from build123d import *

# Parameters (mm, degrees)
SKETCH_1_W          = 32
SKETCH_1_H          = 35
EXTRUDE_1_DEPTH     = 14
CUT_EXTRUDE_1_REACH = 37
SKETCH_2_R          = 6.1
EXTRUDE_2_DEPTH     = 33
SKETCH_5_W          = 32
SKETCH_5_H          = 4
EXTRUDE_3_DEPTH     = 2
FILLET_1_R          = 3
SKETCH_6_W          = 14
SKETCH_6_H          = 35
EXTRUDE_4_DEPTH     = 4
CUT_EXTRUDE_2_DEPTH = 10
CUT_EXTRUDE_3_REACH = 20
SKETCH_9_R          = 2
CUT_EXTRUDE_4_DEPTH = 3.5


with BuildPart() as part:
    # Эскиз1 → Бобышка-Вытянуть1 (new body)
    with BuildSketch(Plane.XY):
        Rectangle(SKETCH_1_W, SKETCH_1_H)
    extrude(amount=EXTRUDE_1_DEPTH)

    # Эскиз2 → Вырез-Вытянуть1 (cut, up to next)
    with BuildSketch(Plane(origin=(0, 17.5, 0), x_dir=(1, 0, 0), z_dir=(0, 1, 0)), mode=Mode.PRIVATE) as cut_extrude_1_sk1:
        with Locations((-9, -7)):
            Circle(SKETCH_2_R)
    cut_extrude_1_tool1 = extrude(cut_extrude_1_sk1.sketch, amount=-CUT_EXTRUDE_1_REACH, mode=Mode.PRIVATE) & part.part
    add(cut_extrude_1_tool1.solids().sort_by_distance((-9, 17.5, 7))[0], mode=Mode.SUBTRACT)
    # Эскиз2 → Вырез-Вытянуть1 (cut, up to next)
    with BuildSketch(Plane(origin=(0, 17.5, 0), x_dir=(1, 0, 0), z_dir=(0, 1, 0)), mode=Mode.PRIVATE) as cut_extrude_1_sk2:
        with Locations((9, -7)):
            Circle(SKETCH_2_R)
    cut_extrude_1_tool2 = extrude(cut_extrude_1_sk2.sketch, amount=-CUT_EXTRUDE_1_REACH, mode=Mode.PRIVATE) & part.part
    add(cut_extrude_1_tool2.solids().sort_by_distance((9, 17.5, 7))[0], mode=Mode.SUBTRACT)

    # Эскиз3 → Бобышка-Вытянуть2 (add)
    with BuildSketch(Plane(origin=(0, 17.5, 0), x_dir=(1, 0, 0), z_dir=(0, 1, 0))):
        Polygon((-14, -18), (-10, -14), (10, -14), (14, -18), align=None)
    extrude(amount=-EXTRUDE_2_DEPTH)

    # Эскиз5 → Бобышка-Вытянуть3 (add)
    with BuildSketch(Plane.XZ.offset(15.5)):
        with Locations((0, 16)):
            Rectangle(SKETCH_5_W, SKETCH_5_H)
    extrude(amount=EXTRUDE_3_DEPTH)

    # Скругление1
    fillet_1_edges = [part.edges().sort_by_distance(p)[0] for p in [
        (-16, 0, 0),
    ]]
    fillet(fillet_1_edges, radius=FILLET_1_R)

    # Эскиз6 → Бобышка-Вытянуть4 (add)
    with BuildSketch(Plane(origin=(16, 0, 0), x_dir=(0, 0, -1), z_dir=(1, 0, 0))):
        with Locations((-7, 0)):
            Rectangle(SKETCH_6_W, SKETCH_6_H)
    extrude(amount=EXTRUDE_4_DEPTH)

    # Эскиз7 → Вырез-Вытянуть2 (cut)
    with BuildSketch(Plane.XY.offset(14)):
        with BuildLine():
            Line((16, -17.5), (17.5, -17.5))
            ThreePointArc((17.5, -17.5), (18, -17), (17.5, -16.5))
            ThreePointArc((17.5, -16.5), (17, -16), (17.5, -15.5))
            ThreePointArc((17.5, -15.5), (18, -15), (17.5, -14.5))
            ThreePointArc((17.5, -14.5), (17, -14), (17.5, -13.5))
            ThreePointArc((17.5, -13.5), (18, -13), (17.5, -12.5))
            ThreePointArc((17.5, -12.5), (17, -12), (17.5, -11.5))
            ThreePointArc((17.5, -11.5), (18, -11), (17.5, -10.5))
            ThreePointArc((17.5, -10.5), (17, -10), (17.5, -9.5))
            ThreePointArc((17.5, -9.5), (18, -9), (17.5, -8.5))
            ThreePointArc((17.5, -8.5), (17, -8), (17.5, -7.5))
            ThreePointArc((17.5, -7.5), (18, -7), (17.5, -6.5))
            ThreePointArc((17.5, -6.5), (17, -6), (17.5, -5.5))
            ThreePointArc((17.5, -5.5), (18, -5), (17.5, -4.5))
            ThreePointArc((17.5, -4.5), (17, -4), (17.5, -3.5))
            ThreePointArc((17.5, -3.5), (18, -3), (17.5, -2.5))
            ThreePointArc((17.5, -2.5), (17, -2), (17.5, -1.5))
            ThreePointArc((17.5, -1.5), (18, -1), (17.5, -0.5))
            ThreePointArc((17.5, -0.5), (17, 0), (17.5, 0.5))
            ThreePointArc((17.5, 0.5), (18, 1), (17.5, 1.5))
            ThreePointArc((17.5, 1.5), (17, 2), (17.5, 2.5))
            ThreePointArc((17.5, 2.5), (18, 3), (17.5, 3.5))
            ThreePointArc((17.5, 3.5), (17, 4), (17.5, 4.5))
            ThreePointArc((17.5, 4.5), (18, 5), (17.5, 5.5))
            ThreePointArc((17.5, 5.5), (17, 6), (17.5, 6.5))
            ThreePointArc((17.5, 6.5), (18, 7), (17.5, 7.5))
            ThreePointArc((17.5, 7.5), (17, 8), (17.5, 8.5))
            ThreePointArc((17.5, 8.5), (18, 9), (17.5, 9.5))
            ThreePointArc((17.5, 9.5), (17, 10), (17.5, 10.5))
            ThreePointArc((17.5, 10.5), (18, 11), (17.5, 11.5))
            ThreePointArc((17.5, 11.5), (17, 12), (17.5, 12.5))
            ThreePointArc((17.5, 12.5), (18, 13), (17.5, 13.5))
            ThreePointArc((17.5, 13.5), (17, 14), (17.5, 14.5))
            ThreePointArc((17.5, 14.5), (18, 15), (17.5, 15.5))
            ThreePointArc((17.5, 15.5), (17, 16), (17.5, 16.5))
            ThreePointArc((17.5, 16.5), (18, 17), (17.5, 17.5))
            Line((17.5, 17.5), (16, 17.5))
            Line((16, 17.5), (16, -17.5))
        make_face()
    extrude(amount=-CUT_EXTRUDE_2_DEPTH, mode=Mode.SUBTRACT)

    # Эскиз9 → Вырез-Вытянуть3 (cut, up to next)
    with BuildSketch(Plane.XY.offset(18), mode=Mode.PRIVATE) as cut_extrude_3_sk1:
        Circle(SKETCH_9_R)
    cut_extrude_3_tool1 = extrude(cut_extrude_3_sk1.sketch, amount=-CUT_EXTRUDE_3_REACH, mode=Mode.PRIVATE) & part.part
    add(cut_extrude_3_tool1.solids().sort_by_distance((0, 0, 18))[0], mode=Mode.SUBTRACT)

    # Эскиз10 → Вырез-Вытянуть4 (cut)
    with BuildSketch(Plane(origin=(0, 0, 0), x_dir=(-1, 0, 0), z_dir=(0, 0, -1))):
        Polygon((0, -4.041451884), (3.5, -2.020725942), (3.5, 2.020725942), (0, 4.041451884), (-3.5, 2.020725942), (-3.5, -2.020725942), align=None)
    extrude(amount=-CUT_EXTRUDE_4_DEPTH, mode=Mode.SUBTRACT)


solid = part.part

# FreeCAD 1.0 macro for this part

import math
import FreeCAD as App
import Part
import Sketcher
from FreeCAD import Vector
Q = App.Units.Quantity


def edges_at(feature, points):
    """Names of the edges that pass closest to the given points."""
    edges = feature.Shape.Edges
    near = lambda p: min(range(len(edges)), key=lambda i: edges[i].distToShape(Part.Vertex(*p))[0])
    return sorted({f"Edge{near(p) + 1}" for p in points})


def add_polygon(sketch, points):
    """Adds a closed chain of lines whose ends are joined by coincident constraints."""
    first, n = sketch.GeometryCount, len(points)
    for a, b in zip(points, points[1:] + points[:1]):
        sketch.addGeometry(Part.LineSegment(App.Vector(*a, 0), App.Vector(*b, 0)), False)
    for i in range(n):
        sketch.addConstraint(Sketcher.Constraint("Coincident", first + i, 2, first + (i + 1) % n, 1))

doc = App.newDocument("Part")
body = doc.addObject("PartDesign::Body", "Body")

# Sketch on XY plane
sketch1 = doc.addObject("Sketcher::SketchObject", "Sketch")
body.addObject(sketch1)
sketch1.AttachmentSupport = (doc.XY_Plane, [""])
sketch1.MapMode = "FlatFace"
add_polygon(sketch1, [(-16, 18), (-16, -18), (16, -18), (16, 18)])  # lines 0-3
sketch1.addConstraint(Sketcher.Constraint("Vertical", 0))
sketch1.addConstraint(Sketcher.Constraint("Horizontal", 1))
sketch1.addConstraint(Sketcher.Constraint("Vertical", 2))
sketch1.addConstraint(Sketcher.Constraint("Horizontal", 3))
sketch1.addConstraint(Sketcher.Constraint("Symmetric", 0, 2, 2, 2, -1, 1))
sketch1.addConstraint(Sketcher.Constraint("DistanceX", 1, 1, 1, 2, Q("32 mm")))
sketch1.addConstraint(Sketcher.Constraint("DistanceY", 0, 2, 0, 1, Q("35 mm")))
pad1 = doc.addObject("PartDesign::Pad", "Pad")
body.addObject(pad1)
pad1.Profile = sketch1
pad1.Length = 14

# Sketch on XZ plane
sketch2 = doc.addObject("Sketcher::SketchObject", "Sketch001")
body.addObject(sketch2)
sketch2.AttachmentSupport = (doc.XZ_Plane, [""])
sketch2.MapMode = "FlatFace"
sketch2.AttachmentOffset = App.Placement(Vector(0, 0, -17.5), App.Rotation())
sketch2.addGeometry(Part.Circle(Vector(-9, 7, 0), Vector(0, 0, 1), 6), False)
sketch2.addConstraint(Sketcher.Constraint("Diameter", 0, Q("12.2 mm")))
sketch2.addConstraint(Sketcher.Constraint("DistanceX", 0, 3, -1, 1, Q("9 mm")))
sketch2.addConstraint(Sketcher.Constraint("DistanceY", -1, 1, 0, 3, Q("7 mm")))
pocket1 = doc.addObject("PartDesign::Pocket", "Pocket")
body.addObject(pocket1)
pocket1.Profile = sketch2
pocket1.Type = "UpToFirst"
pocket1.Reversed = True

# Sketch on XZ plane
sketch3 = doc.addObject("Sketcher::SketchObject", "Sketch002")
body.addObject(sketch3)
sketch3.AttachmentSupport = (doc.XZ_Plane, [""])
sketch3.MapMode = "FlatFace"
sketch3.AttachmentOffset = App.Placement(Vector(0, 0, -17.5), App.Rotation())
sketch3.addGeometry(Part.Circle(Vector(9, 7, 0), Vector(0, 0, 1), 6), False)
sketch3.addConstraint(Sketcher.Constraint("Diameter", 0, Q("12.2 mm")))
sketch3.addConstraint(Sketcher.Constraint("DistanceX", -1, 1, 0, 3, Q("9 mm")))
sketch3.addConstraint(Sketcher.Constraint("DistanceY", -1, 1, 0, 3, Q("7 mm")))
pocket2 = doc.addObject("PartDesign::Pocket", "Pocket001")
body.addObject(pocket2)
pocket2.Profile = sketch3
pocket2.Type = "UpToFirst"
pocket2.Reversed = True

# Sketch on XZ plane
sketch4 = doc.addObject("Sketcher::SketchObject", "Sketch003")
body.addObject(sketch4)
sketch4.AttachmentSupport = (doc.XZ_Plane, [""])
sketch4.MapMode = "FlatFace"
sketch4.AttachmentOffset = App.Placement(Vector(0, 0, -17.5), App.Rotation())
add_polygon(sketch4, [(-10, 14), (-14, 18), (14, 18), (10, 14)])  # lines 0-3
sketch4.addConstraint(Sketcher.Constraint("Horizontal", 1))
sketch4.addConstraint(Sketcher.Constraint("Horizontal", 3))
sketch4.addConstraint(Sketcher.Constraint("Perpendicular", 0, 2))
sketch4.addConstraint(Sketcher.Constraint("Equal", 0, 2))
sketch4.addConstraint(Sketcher.Constraint("DistanceX", 1, 1, 1, 2, Q("28 mm")))
sketch4.addConstraint(Sketcher.Constraint("DistanceX", 3, 2, 3, 1, Q("20 mm")))
sketch4.addConstraint(Sketcher.Constraint("DistanceX", 0, 2, -1, 1, Q("14 mm")))
sketch4.addConstraint(Sketcher.Constraint("DistanceY", -1, 1, 0, 2, Q("18 mm")))
pad2 = doc.addObject("PartDesign::Pad", "Pad001")
body.addObject(pad2)
pad2.Profile = sketch4
pad2.Length = 33

# Sketch on XZ plane
sketch5 = doc.addObject("Sketcher::SketchObject", "Sketch004")
body.addObject(sketch5)
sketch5.AttachmentSupport = (doc.XZ_Plane, [""])
sketch5.MapMode = "FlatFace"
sketch5.AttachmentOffset = App.Placement(Vector(0, 0, 15.5), App.Rotation())
add_polygon(sketch5, [(-16, 18), (-16, 14), (16, 14), (16, 18)])  # lines 0-3
sketch5.addConstraint(Sketcher.Constraint("Vertical", 0))
sketch5.addConstraint(Sketcher.Constraint("Horizontal", 1))
sketch5.addConstraint(Sketcher.Constraint("Vertical", 2))
sketch5.addConstraint(Sketcher.Constraint("Horizontal", 3))
sketch5.addConstraint(Sketcher.Constraint("DistanceX", 1, 1, 1, 2, Q("32 mm")))
sketch5.addConstraint(Sketcher.Constraint("DistanceY", 0, 2, 0, 1, Q("4 mm")))
sketch5.addConstraint(Sketcher.Constraint("DistanceX", 0, 2, -1, 1, Q("16 mm")))
sketch5.addConstraint(Sketcher.Constraint("DistanceY", -1, 1, 0, 2, Q("14 mm")))
pad3 = doc.addObject("PartDesign::Pad", "Pad002")
body.addObject(pad3)
pad3.Profile = sketch5
pad3.Length = 2
doc.recompute()

fillet = doc.addObject("PartDesign::Fillet", "Fillet")
body.addObject(fillet)
fillet.Base = (pad3, edges_at(pad3, [(-16, 0, 0)]))
fillet.Radius = 3

# Sketch on YZ plane
sketch6 = doc.addObject("Sketcher::SketchObject", "Sketch005")
body.addObject(sketch6)
sketch6.AttachmentSupport = (doc.YZ_Plane, [""])
sketch6.MapMode = "FlatFace"
sketch6.AttachmentOffset = App.Placement(Vector(0, 0, 16), App.Rotation())
add_polygon(sketch6, [(18, 14), (-18, 14), (-18, 0), (18, 0)])  # lines 0-3
sketch6.addConstraint(Sketcher.Constraint("Horizontal", 0))
sketch6.addConstraint(Sketcher.Constraint("Vertical", 1))
sketch6.addConstraint(Sketcher.Constraint("Horizontal", 2))
sketch6.addConstraint(Sketcher.Constraint("Vertical", 3))
sketch6.addConstraint(Sketcher.Constraint("Symmetric", 1, 2, 2, 2, -1, 1))
sketch6.addConstraint(Sketcher.Constraint("DistanceX", 0, 2, 0, 1, Q("35 mm")))
sketch6.addConstraint(Sketcher.Constraint("DistanceY", 1, 2, 1, 1, Q("14 mm")))
pad4 = doc.addObject("PartDesign::Pad", "Pad003")
body.addObject(pad4)
pad4.Profile = sketch6
pad4.Length = 4

# Sketch on XY plane
sketch7 = doc.addObject("Sketcher::SketchObject", "Sketch006")
body.addObject(sketch7)
sketch7.AttachmentSupport = (doc.XY_Plane, [""])
sketch7.MapMode = "FlatFace"
sketch7.AttachmentOffset = App.Placement(Vector(0, 0, 14), App.Rotation())
sketch7.addGeometry(Part.LineSegment(Vector(16, -17.5, 0), Vector(17.5, -17.5, 0)), False)
sketch7.addGeometry(Part.ArcOfCircle(Part.Circle(Vector(17.5, -17, 0), Vector(0, 0, 1), 0.5), math.radians(-90), math.radians(90)), False)
sketch7.addGeometry(Part.ArcOfCircle(Part.Circle(Vector(17.5, -16, 0), Vector(0, 0, 1), 0.5), math.radians(90), math.radians(270)), False)
sketch7.addGeometry(Part.ArcOfCircle(Part.Circle(Vector(17.5, -15, 0), Vector(0, 0, 1), 0.5), math.radians(-90), math.radians(90)), False)
sketch7.addGeometry(Part.ArcOfCircle(Part.Circle(Vector(17.5, -14, 0), Vector(0, 0, 1), 0.5), math.radians(90), math.radians(270)), False)
sketch7.addGeometry(Part.ArcOfCircle(Part.Circle(Vector(17.5, -13, 0), Vector(0, 0, 1), 0.5), math.radians(-90), math.radians(90)), False)
sketch7.addGeometry(Part.ArcOfCircle(Part.Circle(Vector(17.5, -12, 0), Vector(0, 0, 1), 0.5), math.radians(90), math.radians(270)), False)
sketch7.addGeometry(Part.ArcOfCircle(Part.Circle(Vector(17.5, -11, 0), Vector(0, 0, 1), 0.5), math.radians(-90), math.radians(90)), False)
sketch7.addGeometry(Part.ArcOfCircle(Part.Circle(Vector(17.5, -10, 0), Vector(0, 0, 1), 0.5), math.radians(90), math.radians(270)), False)
sketch7.addGeometry(Part.ArcOfCircle(Part.Circle(Vector(17.5, -9, 0), Vector(0, 0, 1), 0.5), math.radians(-90), math.radians(90)), False)
sketch7.addGeometry(Part.ArcOfCircle(Part.Circle(Vector(17.5, -8, 0), Vector(0, 0, 1), 0.5), math.radians(90), math.radians(270)), False)
sketch7.addGeometry(Part.ArcOfCircle(Part.Circle(Vector(17.5, -7, 0), Vector(0, 0, 1), 0.5), math.radians(-90), math.radians(90)), False)
sketch7.addGeometry(Part.ArcOfCircle(Part.Circle(Vector(17.5, -6, 0), Vector(0, 0, 1), 0.5), math.radians(90), math.radians(270)), False)
sketch7.addGeometry(Part.ArcOfCircle(Part.Circle(Vector(17.5, -5, 0), Vector(0, 0, 1), 0.5), math.radians(-90), math.radians(90)), False)
sketch7.addGeometry(Part.ArcOfCircle(Part.Circle(Vector(17.5, -4, 0), Vector(0, 0, 1), 0.5), math.radians(90), math.radians(270)), False)
sketch7.addGeometry(Part.ArcOfCircle(Part.Circle(Vector(17.5, -3, 0), Vector(0, 0, 1), 0.5), math.radians(-90), math.radians(90)), False)
sketch7.addGeometry(Part.ArcOfCircle(Part.Circle(Vector(17.5, -2, 0), Vector(0, 0, 1), 0.5), math.radians(90), math.radians(270)), False)
sketch7.addGeometry(Part.ArcOfCircle(Part.Circle(Vector(17.5, -1, 0), Vector(0, 0, 1), 0.5), math.radians(-90), math.radians(90)), False)
sketch7.addGeometry(Part.ArcOfCircle(Part.Circle(Vector(17.5, 0, 0), Vector(0, 0, 1), 0.5), math.radians(90), math.radians(270)), False)
sketch7.addGeometry(Part.ArcOfCircle(Part.Circle(Vector(17.5, 1, 0), Vector(0, 0, 1), 0.5), math.radians(-90), math.radians(90)), False)
sketch7.addGeometry(Part.ArcOfCircle(Part.Circle(Vector(17.5, 2, 0), Vector(0, 0, 1), 0.5), math.radians(90), math.radians(270)), False)
sketch7.addGeometry(Part.ArcOfCircle(Part.Circle(Vector(17.5, 3, 0), Vector(0, 0, 1), 0.5), math.radians(-90), math.radians(90)), False)
sketch7.addGeometry(Part.ArcOfCircle(Part.Circle(Vector(17.5, 4, 0), Vector(0, 0, 1), 0.5), math.radians(90), math.radians(270)), False)
sketch7.addGeometry(Part.ArcOfCircle(Part.Circle(Vector(17.5, 5, 0), Vector(0, 0, 1), 0.5), math.radians(-90), math.radians(90)), False)
sketch7.addGeometry(Part.ArcOfCircle(Part.Circle(Vector(17.5, 6, 0), Vector(0, 0, 1), 0.5), math.radians(90), math.radians(270)), False)
sketch7.addGeometry(Part.ArcOfCircle(Part.Circle(Vector(17.5, 7, 0), Vector(0, 0, 1), 0.5), math.radians(-90), math.radians(90)), False)
sketch7.addGeometry(Part.ArcOfCircle(Part.Circle(Vector(17.5, 8, 0), Vector(0, 0, 1), 0.5), math.radians(90), math.radians(270)), False)
sketch7.addGeometry(Part.ArcOfCircle(Part.Circle(Vector(17.5, 9, 0), Vector(0, 0, 1), 0.5), math.radians(-90), math.radians(90)), False)
sketch7.addGeometry(Part.ArcOfCircle(Part.Circle(Vector(17.5, 10, 0), Vector(0, 0, 1), 0.5), math.radians(90), math.radians(270)), False)
sketch7.addGeometry(Part.ArcOfCircle(Part.Circle(Vector(17.5, 11, 0), Vector(0, 0, 1), 0.5), math.radians(-90), math.radians(90)), False)
sketch7.addGeometry(Part.ArcOfCircle(Part.Circle(Vector(17.5, 12, 0), Vector(0, 0, 1), 0.5), math.radians(90), math.radians(270)), False)
sketch7.addGeometry(Part.ArcOfCircle(Part.Circle(Vector(17.5, 13, 0), Vector(0, 0, 1), 0.5), math.radians(-90), math.radians(90)), False)
sketch7.addGeometry(Part.ArcOfCircle(Part.Circle(Vector(17.5, 14, 0), Vector(0, 0, 1), 0.5), math.radians(90), math.radians(270)), False)
sketch7.addGeometry(Part.ArcOfCircle(Part.Circle(Vector(17.5, 15, 0), Vector(0, 0, 1), 0.5), math.radians(-90), math.radians(90)), False)
sketch7.addGeometry(Part.ArcOfCircle(Part.Circle(Vector(17.5, 16, 0), Vector(0, 0, 1), 0.5), math.radians(90), math.radians(270)), False)
sketch7.addGeometry(Part.ArcOfCircle(Part.Circle(Vector(17.5, 17, 0), Vector(0, 0, 1), 0.5), math.radians(-90), math.radians(90)), False)
sketch7.addGeometry(Part.LineSegment(Vector(17.5, 17.5, 0), Vector(16, 17.5, 0)), False)
sketch7.addGeometry(Part.LineSegment(Vector(16, 17.5, 0), Vector(16, -17.5, 0)), False)
sketch7.addConstraint(Sketcher.Constraint("Tangent", 0, 2, 1, 1))
sketch7.addConstraint(Sketcher.Constraint("Tangent", 1, 2, 2, 2))
sketch7.addConstraint(Sketcher.Constraint("Tangent", 2, 1, 3, 1))
sketch7.addConstraint(Sketcher.Constraint("Tangent", 3, 2, 4, 2))
sketch7.addConstraint(Sketcher.Constraint("Tangent", 4, 1, 5, 1))
sketch7.addConstraint(Sketcher.Constraint("Tangent", 5, 2, 6, 2))
sketch7.addConstraint(Sketcher.Constraint("Tangent", 6, 1, 7, 1))
sketch7.addConstraint(Sketcher.Constraint("Tangent", 7, 2, 8, 2))
sketch7.addConstraint(Sketcher.Constraint("Tangent", 8, 1, 9, 1))
sketch7.addConstraint(Sketcher.Constraint("Tangent", 9, 2, 10, 2))
sketch7.addConstraint(Sketcher.Constraint("Tangent", 10, 1, 11, 1))
sketch7.addConstraint(Sketcher.Constraint("Tangent", 11, 2, 12, 2))
sketch7.addConstraint(Sketcher.Constraint("Tangent", 12, 1, 13, 1))
sketch7.addConstraint(Sketcher.Constraint("Tangent", 13, 2, 14, 2))
sketch7.addConstraint(Sketcher.Constraint("Tangent", 14, 1, 15, 1))
sketch7.addConstraint(Sketcher.Constraint("Tangent", 15, 2, 16, 2))
sketch7.addConstraint(Sketcher.Constraint("Tangent", 16, 1, 17, 1))
sketch7.addConstraint(Sketcher.Constraint("Tangent", 17, 2, 18, 2))
sketch7.addConstraint(Sketcher.Constraint("Tangent", 18, 1, 19, 1))
sketch7.addConstraint(Sketcher.Constraint("Tangent", 19, 2, 20, 2))
sketch7.addConstraint(Sketcher.Constraint("Tangent", 20, 1, 21, 1))
sketch7.addConstraint(Sketcher.Constraint("Tangent", 21, 2, 22, 2))
sketch7.addConstraint(Sketcher.Constraint("Tangent", 22, 1, 23, 1))
sketch7.addConstraint(Sketcher.Constraint("Tangent", 23, 2, 24, 2))
sketch7.addConstraint(Sketcher.Constraint("Tangent", 24, 1, 25, 1))
sketch7.addConstraint(Sketcher.Constraint("Tangent", 25, 2, 26, 2))
sketch7.addConstraint(Sketcher.Constraint("Tangent", 26, 1, 27, 1))
sketch7.addConstraint(Sketcher.Constraint("Tangent", 27, 2, 28, 2))
sketch7.addConstraint(Sketcher.Constraint("Tangent", 28, 1, 29, 1))
sketch7.addConstraint(Sketcher.Constraint("Tangent", 29, 2, 30, 2))
sketch7.addConstraint(Sketcher.Constraint("Tangent", 30, 1, 31, 1))
sketch7.addConstraint(Sketcher.Constraint("Tangent", 31, 2, 32, 2))
sketch7.addConstraint(Sketcher.Constraint("Tangent", 32, 1, 33, 1))
sketch7.addConstraint(Sketcher.Constraint("Tangent", 33, 2, 34, 2))
sketch7.addConstraint(Sketcher.Constraint("Tangent", 34, 1, 35, 1))
sketch7.addConstraint(Sketcher.Constraint("Tangent", 35, 2, 36, 1))
sketch7.addConstraint(Sketcher.Constraint("Coincident", 36, 2, 37, 1))
sketch7.addConstraint(Sketcher.Constraint("Coincident", 37, 2, 0, 1))
sketch7.addConstraint(Sketcher.Constraint("Horizontal", 0))
sketch7.addConstraint(Sketcher.Constraint("Horizontal", 36))
sketch7.addConstraint(Sketcher.Constraint("Vertical", 37))
sketch7.addConstraint(Sketcher.Constraint("Equal", 1, 2))
sketch7.addConstraint(Sketcher.Constraint("Equal", 2, 3))
sketch7.addConstraint(Sketcher.Constraint("Equal", 3, 4))
sketch7.addConstraint(Sketcher.Constraint("Equal", 4, 5))
sketch7.addConstraint(Sketcher.Constraint("Equal", 5, 6))
sketch7.addConstraint(Sketcher.Constraint("Equal", 6, 7))
sketch7.addConstraint(Sketcher.Constraint("Equal", 7, 8))
sketch7.addConstraint(Sketcher.Constraint("Equal", 8, 9))
sketch7.addConstraint(Sketcher.Constraint("Equal", 9, 10))
sketch7.addConstraint(Sketcher.Constraint("Equal", 10, 11))
sketch7.addConstraint(Sketcher.Constraint("Equal", 11, 12))
sketch7.addConstraint(Sketcher.Constraint("Equal", 12, 13))
sketch7.addConstraint(Sketcher.Constraint("Equal", 13, 14))
sketch7.addConstraint(Sketcher.Constraint("Equal", 14, 15))
sketch7.addConstraint(Sketcher.Constraint("Equal", 15, 16))
sketch7.addConstraint(Sketcher.Constraint("Equal", 16, 17))
sketch7.addConstraint(Sketcher.Constraint("Equal", 17, 18))
sketch7.addConstraint(Sketcher.Constraint("Equal", 18, 19))
sketch7.addConstraint(Sketcher.Constraint("Equal", 19, 20))
sketch7.addConstraint(Sketcher.Constraint("Equal", 20, 21))
sketch7.addConstraint(Sketcher.Constraint("Equal", 21, 22))
sketch7.addConstraint(Sketcher.Constraint("Equal", 22, 23))
sketch7.addConstraint(Sketcher.Constraint("Equal", 23, 24))
sketch7.addConstraint(Sketcher.Constraint("Equal", 24, 25))
sketch7.addConstraint(Sketcher.Constraint("Equal", 25, 26))
sketch7.addConstraint(Sketcher.Constraint("Equal", 26, 27))
sketch7.addConstraint(Sketcher.Constraint("Equal", 27, 28))
sketch7.addConstraint(Sketcher.Constraint("Equal", 28, 29))
sketch7.addConstraint(Sketcher.Constraint("Equal", 29, 30))
sketch7.addConstraint(Sketcher.Constraint("Equal", 30, 31))
sketch7.addConstraint(Sketcher.Constraint("Equal", 31, 32))
sketch7.addConstraint(Sketcher.Constraint("Equal", 32, 33))
sketch7.addConstraint(Sketcher.Constraint("Equal", 33, 34))
sketch7.addConstraint(Sketcher.Constraint("Equal", 34, 35))
sketch7.addConstraint(Sketcher.Constraint("Symmetric", 17, 3, 19, 3, -1))
sketch7.addConstraint(Sketcher.Constraint("Vertical", 1, 3, 2, 3))
sketch7.addConstraint(Sketcher.Constraint("Vertical", 2, 3, 3, 3))
sketch7.addConstraint(Sketcher.Constraint("Vertical", 3, 3, 4, 3))
sketch7.addConstraint(Sketcher.Constraint("Vertical", 4, 3, 5, 3))
sketch7.addConstraint(Sketcher.Constraint("Vertical", 5, 3, 6, 3))
sketch7.addConstraint(Sketcher.Constraint("Vertical", 6, 3, 7, 3))
sketch7.addConstraint(Sketcher.Constraint("Vertical", 7, 3, 8, 3))
sketch7.addConstraint(Sketcher.Constraint("Vertical", 8, 3, 9, 3))
sketch7.addConstraint(Sketcher.Constraint("Vertical", 9, 3, 10, 3))
sketch7.addConstraint(Sketcher.Constraint("Vertical", 10, 3, 11, 3))
sketch7.addConstraint(Sketcher.Constraint("Vertical", 11, 3, 12, 3))
sketch7.addConstraint(Sketcher.Constraint("Vertical", 12, 3, 13, 3))
sketch7.addConstraint(Sketcher.Constraint("Vertical", 13, 3, 14, 3))
sketch7.addConstraint(Sketcher.Constraint("Vertical", 14, 3, 15, 3))
sketch7.addConstraint(Sketcher.Constraint("Vertical", 15, 3, 16, 3))
sketch7.addConstraint(Sketcher.Constraint("Vertical", 16, 3, 17, 3))
sketch7.addConstraint(Sketcher.Constraint("Vertical", 17, 3, 18, 3))
sketch7.addConstraint(Sketcher.Constraint("Vertical", 19, 3, 20, 3))
sketch7.addConstraint(Sketcher.Constraint("Vertical", 20, 3, 21, 3))
sketch7.addConstraint(Sketcher.Constraint("Vertical", 21, 3, 22, 3))
sketch7.addConstraint(Sketcher.Constraint("Vertical", 22, 3, 23, 3))
sketch7.addConstraint(Sketcher.Constraint("Vertical", 23, 3, 24, 3))
sketch7.addConstraint(Sketcher.Constraint("Vertical", 24, 3, 25, 3))
sketch7.addConstraint(Sketcher.Constraint("Vertical", 25, 3, 26, 3))
sketch7.addConstraint(Sketcher.Constraint("Vertical", 26, 3, 27, 3))
sketch7.addConstraint(Sketcher.Constraint("Vertical", 27, 3, 28, 3))
sketch7.addConstraint(Sketcher.Constraint("Vertical", 28, 3, 29, 3))
sketch7.addConstraint(Sketcher.Constraint("Vertical", 29, 3, 30, 3))
sketch7.addConstraint(Sketcher.Constraint("Vertical", 30, 3, 31, 3))
sketch7.addConstraint(Sketcher.Constraint("Vertical", 31, 3, 32, 3))
sketch7.addConstraint(Sketcher.Constraint("Vertical", 32, 3, 33, 3))
sketch7.addConstraint(Sketcher.Constraint("Vertical", 33, 3, 34, 3))
sketch7.addConstraint(Sketcher.Constraint("Vertical", 34, 3, 35, 3))
sketch7.addConstraint(Sketcher.Constraint("Radius", 1, Q("0.5 mm")))
sketch7.addConstraint(Sketcher.Constraint("DistanceX", 0, 1, 0, 2, Q("1.5 mm")))
sketch7.addConstraint(Sketcher.Constraint("DistanceX", -1, 1, 36, 2, Q("16 mm")))
pocket3 = doc.addObject("PartDesign::Pocket", "Pocket002")
body.addObject(pocket3)
pocket3.Profile = sketch7
pocket3.Length = 10

# Sketch on XY plane
sketch8 = doc.addObject("Sketcher::SketchObject", "Sketch007")
body.addObject(sketch8)
sketch8.AttachmentSupport = (doc.XY_Plane, [""])
sketch8.MapMode = "FlatFace"
sketch8.AttachmentOffset = App.Placement(Vector(0, 0, 18), App.Rotation())
sketch8.addGeometry(Part.Circle(Vector(0, 0, 0), Vector(0, 0, 1), 2), False)
sketch8.addConstraint(Sketcher.Constraint("Coincident", 0, 3, -1, 1))
sketch8.addConstraint(Sketcher.Constraint("Diameter", 0, Q("4 mm")))
pocket4 = doc.addObject("PartDesign::Pocket", "Pocket003")
body.addObject(pocket4)
pocket4.Profile = sketch8
pocket4.Type = "UpToFirst"

# Sketch on XY plane
sketch9 = doc.addObject("Sketcher::SketchObject", "Sketch008")
body.addObject(sketch9)
sketch9.AttachmentSupport = (doc.XY_Plane, [""])
sketch9.MapMode = "FlatFace"
add_polygon(sketch9, [(0, -4), (-3.5, -2), (-3.5, 2), (0, 4), (3.5, 2), (3.5, -2)])  # lines 0-5
sketch9.addConstraint(Sketcher.Constraint("Vertical", 1))
sketch9.addConstraint(Sketcher.Constraint("Vertical", 4))
sketch9.addConstraint(Sketcher.Constraint("Symmetric", 0, 2, 3, 2, -1, 1))
sketch9.addConstraint(Sketcher.Constraint("Symmetric", 2, 2, 5, 2, -1, 1))
sketch9.addConstraint(Sketcher.Constraint("PointOnObject", 2, 2, -2))
sketch9.addConstraint(Sketcher.Constraint("Parallel", 2, 5))
sketch9.addConstraint(Sketcher.Constraint("Horizontal", 1, 2, 3, 2))
sketch9.addConstraint(Sketcher.Constraint("Angle", 0, Q("150 deg")))
sketch9.addConstraint(Sketcher.Constraint("DistanceX", 1, 2, 3, 2, Q("7 mm")))
sketch9.addConstraint(Sketcher.Constraint("DistanceY", 1, 1, 1, 2, Q("4.041452 mm")))
pocket5 = doc.addObject("PartDesign::Pocket", "Pocket004")
body.addObject(pocket5)
pocket5.Profile = sketch9
pocket5.Length = 3.5
pocket5.Reversed = True

doc.recompute()
